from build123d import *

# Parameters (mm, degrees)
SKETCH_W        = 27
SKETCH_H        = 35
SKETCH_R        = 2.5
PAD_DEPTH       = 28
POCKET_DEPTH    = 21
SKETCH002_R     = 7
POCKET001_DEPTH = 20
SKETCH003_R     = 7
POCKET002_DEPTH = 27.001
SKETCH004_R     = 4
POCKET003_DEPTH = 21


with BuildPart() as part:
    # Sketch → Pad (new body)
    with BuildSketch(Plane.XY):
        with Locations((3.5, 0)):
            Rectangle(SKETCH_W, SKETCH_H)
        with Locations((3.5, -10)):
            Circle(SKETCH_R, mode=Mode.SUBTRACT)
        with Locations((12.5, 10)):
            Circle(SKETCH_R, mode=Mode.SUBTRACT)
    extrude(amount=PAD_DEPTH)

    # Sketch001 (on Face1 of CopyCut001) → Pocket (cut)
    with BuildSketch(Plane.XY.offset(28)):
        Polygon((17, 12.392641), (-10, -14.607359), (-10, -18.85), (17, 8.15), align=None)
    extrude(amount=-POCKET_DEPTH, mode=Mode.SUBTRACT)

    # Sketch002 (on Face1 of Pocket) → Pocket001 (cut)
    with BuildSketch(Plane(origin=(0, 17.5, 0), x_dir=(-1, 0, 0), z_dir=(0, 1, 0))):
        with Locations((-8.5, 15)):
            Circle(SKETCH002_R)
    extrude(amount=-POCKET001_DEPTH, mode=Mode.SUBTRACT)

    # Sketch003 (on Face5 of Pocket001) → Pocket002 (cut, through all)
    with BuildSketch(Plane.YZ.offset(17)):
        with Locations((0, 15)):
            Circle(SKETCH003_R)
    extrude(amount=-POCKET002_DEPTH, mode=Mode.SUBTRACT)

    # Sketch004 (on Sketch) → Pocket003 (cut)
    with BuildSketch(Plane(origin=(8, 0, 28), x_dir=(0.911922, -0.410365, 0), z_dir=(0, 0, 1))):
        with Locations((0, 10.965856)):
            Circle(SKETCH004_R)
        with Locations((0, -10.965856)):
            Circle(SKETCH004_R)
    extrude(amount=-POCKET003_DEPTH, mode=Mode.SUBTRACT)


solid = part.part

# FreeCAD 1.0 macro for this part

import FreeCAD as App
import Part
import Sketcher
Q = App.Units.Quantity


def add_polygon(sketch, points):
    """Adds a closed chain of lines whose ends are joined by coincident constraints."""
    first, n = sketch.GeometryCount, len(points)
    for a, b in zip(points, points[1:] + points[:1]):
        sketch.addGeometry(Part.LineSegment(App.Vector(*a, 0), App.Vector(*b, 0)), False)
    for i in range(n):
        sketch.addConstraint(Sketcher.Constraint("Coincident", first + i, 2, first + (i + 1) % n, 1))

doc = App.newDocument("Part")
params = doc.addObject("Spreadsheet::Sheet", "Params")
for row, (alias, value) in enumerate([
    ("sketch1_diameter", "5 mm"),
    ("sketch1_width", "27 mm"),
    ("sketch1_height", "35 mm"),
    ("pad1_length", "28 mm"),
    ("pocket1_length", "21 mm"),
    ("sketch3_diameter", "14 mm"),
    ("pocket2_length", "20 mm"),
    ("sketch4_diameter", "14 mm"),
    ("sketch5_diameter", "8 mm"),
    ("pocket4_length", "21 mm"),
], start=1):
    params.set(f"A{row}", alias)
    params.set(f"B{row}", "=" + value)
    params.setAlias(f"B{row}", alias)

body = doc.addObject("PartDesign::Body", "Body")

# Sketch on XY plane
sketch1 = doc.addObject("Sketcher::SketchObject", "Sketch")
body.addObject(sketch1)
sketch1.AttachmentSupport = (doc.XY_Plane, [""])
sketch1.MapMode = "FlatFace"
add_polygon(sketch1, [(-10, 17.5), (-10, -17.5), (17, -17.5), (17, 17.5)])  # lines 0-3
sketch1.addGeometry(Part.Circle(App.Vector(3.5, -10, 0), App.Vector(0, 0, 1), 2.5), False)  # 4
sketch1.addGeometry(Part.Circle(App.Vector(12.5, 10, 0), App.Vector(0, 0, 1), 2.5), False)  # 5
sketch1.addConstraint(Sketcher.Constraint("Vertical", 0))
sketch1.addConstraint(Sketcher.Constraint("Horizontal", 1))
sketch1.addConstraint(Sketcher.Constraint("Vertical", 2))
sketch1.addConstraint(Sketcher.Constraint("Horizontal", 3))
sketch1.addConstraint(Sketcher.Constraint("Equal", 4, 5))
sketch1.addConstraint(Sketcher.Constraint("Diameter", 4, Q("5 mm")))
sketch1.addConstraint(Sketcher.Constraint("DistanceX", 1, 1, 1, 2, Q("27 mm")))
sketch1.addConstraint(Sketcher.Constraint("DistanceY", 0, 2, 0, 1, Q("35 mm")))
sketch1.addConstraint(Sketcher.Constraint("DistanceY", 4, 3, -1, 1, Q("10 mm")))
sketch1.addConstraint(Sketcher.Constraint("DistanceY", -1, 1, 5, 3, Q("10 mm")))
sketch1.addConstraint(Sketcher.Constraint("DistanceX", 0, 2, -1, 1, Q("10 mm")))
sketch1.addConstraint(Sketcher.Constraint("DistanceX", 4, 3, 5, 3, Q("9 mm")))
sketch1.addConstraint(Sketcher.Constraint("DistanceX", -1, 1, 4, 3, Q("3.5 mm")))
sketch1.addConstraint(Sketcher.Constraint("DistanceY", 0, 2, -1, 1, Q("17.5 mm")))
sketch1.setExpression("Constraints[9]", "Params.sketch1_diameter")
sketch1.setExpression("Constraints[10]", "Params.sketch1_width")
sketch1.setExpression("Constraints[11]", "Params.sketch1_height")
pad1 = doc.addObject("PartDesign::Pad", "Pad")
body.addObject(pad1)
pad1.Profile = sketch1
pad1.setExpression("Length", "Params.pad1_length")

# Sketch on XY plane
sketch2 = doc.addObject("Sketcher::SketchObject", "Sketch001")
body.addObject(sketch2)
sketch2.AttachmentSupport = (doc.XY_Plane, [""])
sketch2.MapMode = "FlatFace"
sketch2.AttachmentOffset = App.Placement(App.Vector(0, 0, 28), App.Rotation())
add_polygon(sketch2, [(17, 12.4), (-10, -14.6), (-10, -18.9), (17, 8.2)])  # lines 0-3
sketch2.addConstraint(Sketcher.Constraint("Vertical", 1))
sketch2.addConstraint(Sketcher.Constraint("Vertical", 3))
sketch2.addConstraint(Sketcher.Constraint("Parallel", 0, 2))
sketch2.addConstraint(Sketcher.Constraint("Angle", 0, Q("-135 deg")))
sketch2.addConstraint(Sketcher.Constraint("DistanceX", 0, 2, -1, 1, Q("10 mm")))
sketch2.addConstraint(Sketcher.Constraint("DistanceX", -1, 1, 2, 2, Q("17 mm")))
sketch2.addConstraint(Sketcher.Constraint("DistanceY", 1, 2, -1, 1, Q("18.85 mm")))
sketch2.addConstraint(Sketcher.Constraint("DistanceY", 1, 2, 1, 1, Q("4.242641 mm")))
pocket1 = doc.addObject("PartDesign::Pocket", "Pocket")
body.addObject(pocket1)
pocket1.Profile = sketch2
pocket1.setExpression("Length", "Params.pocket1_length")

# Sketch on XZ plane
sketch3 = doc.addObject("Sketcher::SketchObject", "Sketch002")
body.addObject(sketch3)
sketch3.AttachmentSupport = (doc.XZ_Plane, [""])
sketch3.MapMode = "FlatFace"
sketch3.AttachmentOffset = App.Placement(App.Vector(0, 0, -17.5), App.Rotation())
sketch3.addGeometry(Part.Circle(App.Vector(8, 15, 0), App.Vector(0, 0, 1), 7), False)
sketch3.addConstraint(Sketcher.Constraint("Diameter", 0, Q("14 mm")))
sketch3.addConstraint(Sketcher.Constraint("DistanceY", -1, 1, 0, 3, Q("15 mm")))
sketch3.addConstraint(Sketcher.Constraint("DistanceX", -1, 1, 0, 3, Q("8.5 mm")))
sketch3.setExpression("Constraints[0]", "Params.sketch3_diameter")
pocket2 = doc.addObject("PartDesign::Pocket", "Pocket001")
body.addObject(pocket2)
pocket2.Profile = sketch3
pocket2.setExpression("Length", "Params.pocket2_length")
pocket2.Reversed = True

# Sketch on YZ plane
sketch4 = doc.addObject("Sketcher::SketchObject", "Sketch003")
body.addObject(sketch4)
sketch4.AttachmentSupport = (doc.YZ_Plane, [""])
sketch4.MapMode = "FlatFace"
sketch4.AttachmentOffset = App.Placement(App.Vector(0, 0, 17), App.Rotation())
sketch4.addGeometry(Part.Circle(App.Vector(0, 15, 0), App.Vector(0, 0, 1), 7), False)
sketch4.addConstraint(Sketcher.Constraint("PointOnObject", 0, 3, -2))
sketch4.addConstraint(Sketcher.Constraint("Diameter", 0, Q("14 mm")))
sketch4.addConstraint(Sketcher.Constraint("DistanceY", -1, 1, 0, 3, Q("15 mm")))
sketch4.setExpression("Constraints[1]", "Params.sketch4_diameter")
pocket3 = doc.addObject("PartDesign::Pocket", "Pocket002")
body.addObject(pocket3)
pocket3.Profile = sketch4
pocket3.Type = "ThroughAll"

# Sketch on XY plane
sketch5 = doc.addObject("Sketcher::SketchObject", "Sketch004")
body.addObject(sketch5)
sketch5.AttachmentSupport = (doc.XY_Plane, [""])
sketch5.MapMode = "FlatFace"
sketch5.AttachmentOffset = App.Placement(App.Vector(0, 0, 28), App.Rotation())
sketch5.addGeometry(Part.Circle(App.Vector(12.5, 10, 0), App.Vector(0, 0, 1), 4), False)
sketch5.addGeometry(Part.Circle(App.Vector(3.5, -10, 0), App.Vector(0, 0, 1), 4), False)
sketch5.addConstraint(Sketcher.Constraint("Equal", 0, 1))
sketch5.addConstraint(Sketcher.Constraint("Diameter", 0, Q("8 mm")))
sketch5.addConstraint(Sketcher.Constraint("DistanceY", -1, 1, 0, 3, Q("10 mm")))
sketch5.addConstraint(Sketcher.Constraint("DistanceY", 1, 3, -1, 1, Q("10 mm")))
sketch5.addConstraint(Sketcher.Constraint("DistanceX", 1, 3, 0, 3, Q("9.000002 mm")))
sketch5.addConstraint(Sketcher.Constraint("DistanceX", -1, 1, 0, 3, Q("12.500001 mm")))
sketch5.setExpression("Constraints[1]", "Params.sketch5_diameter")
pocket4 = doc.addObject("PartDesign::Pocket", "Pocket003")
body.addObject(pocket4)
pocket4.Profile = sketch5
pocket4.setExpression("Length", "Params.pocket4_length")

doc.recompute()
